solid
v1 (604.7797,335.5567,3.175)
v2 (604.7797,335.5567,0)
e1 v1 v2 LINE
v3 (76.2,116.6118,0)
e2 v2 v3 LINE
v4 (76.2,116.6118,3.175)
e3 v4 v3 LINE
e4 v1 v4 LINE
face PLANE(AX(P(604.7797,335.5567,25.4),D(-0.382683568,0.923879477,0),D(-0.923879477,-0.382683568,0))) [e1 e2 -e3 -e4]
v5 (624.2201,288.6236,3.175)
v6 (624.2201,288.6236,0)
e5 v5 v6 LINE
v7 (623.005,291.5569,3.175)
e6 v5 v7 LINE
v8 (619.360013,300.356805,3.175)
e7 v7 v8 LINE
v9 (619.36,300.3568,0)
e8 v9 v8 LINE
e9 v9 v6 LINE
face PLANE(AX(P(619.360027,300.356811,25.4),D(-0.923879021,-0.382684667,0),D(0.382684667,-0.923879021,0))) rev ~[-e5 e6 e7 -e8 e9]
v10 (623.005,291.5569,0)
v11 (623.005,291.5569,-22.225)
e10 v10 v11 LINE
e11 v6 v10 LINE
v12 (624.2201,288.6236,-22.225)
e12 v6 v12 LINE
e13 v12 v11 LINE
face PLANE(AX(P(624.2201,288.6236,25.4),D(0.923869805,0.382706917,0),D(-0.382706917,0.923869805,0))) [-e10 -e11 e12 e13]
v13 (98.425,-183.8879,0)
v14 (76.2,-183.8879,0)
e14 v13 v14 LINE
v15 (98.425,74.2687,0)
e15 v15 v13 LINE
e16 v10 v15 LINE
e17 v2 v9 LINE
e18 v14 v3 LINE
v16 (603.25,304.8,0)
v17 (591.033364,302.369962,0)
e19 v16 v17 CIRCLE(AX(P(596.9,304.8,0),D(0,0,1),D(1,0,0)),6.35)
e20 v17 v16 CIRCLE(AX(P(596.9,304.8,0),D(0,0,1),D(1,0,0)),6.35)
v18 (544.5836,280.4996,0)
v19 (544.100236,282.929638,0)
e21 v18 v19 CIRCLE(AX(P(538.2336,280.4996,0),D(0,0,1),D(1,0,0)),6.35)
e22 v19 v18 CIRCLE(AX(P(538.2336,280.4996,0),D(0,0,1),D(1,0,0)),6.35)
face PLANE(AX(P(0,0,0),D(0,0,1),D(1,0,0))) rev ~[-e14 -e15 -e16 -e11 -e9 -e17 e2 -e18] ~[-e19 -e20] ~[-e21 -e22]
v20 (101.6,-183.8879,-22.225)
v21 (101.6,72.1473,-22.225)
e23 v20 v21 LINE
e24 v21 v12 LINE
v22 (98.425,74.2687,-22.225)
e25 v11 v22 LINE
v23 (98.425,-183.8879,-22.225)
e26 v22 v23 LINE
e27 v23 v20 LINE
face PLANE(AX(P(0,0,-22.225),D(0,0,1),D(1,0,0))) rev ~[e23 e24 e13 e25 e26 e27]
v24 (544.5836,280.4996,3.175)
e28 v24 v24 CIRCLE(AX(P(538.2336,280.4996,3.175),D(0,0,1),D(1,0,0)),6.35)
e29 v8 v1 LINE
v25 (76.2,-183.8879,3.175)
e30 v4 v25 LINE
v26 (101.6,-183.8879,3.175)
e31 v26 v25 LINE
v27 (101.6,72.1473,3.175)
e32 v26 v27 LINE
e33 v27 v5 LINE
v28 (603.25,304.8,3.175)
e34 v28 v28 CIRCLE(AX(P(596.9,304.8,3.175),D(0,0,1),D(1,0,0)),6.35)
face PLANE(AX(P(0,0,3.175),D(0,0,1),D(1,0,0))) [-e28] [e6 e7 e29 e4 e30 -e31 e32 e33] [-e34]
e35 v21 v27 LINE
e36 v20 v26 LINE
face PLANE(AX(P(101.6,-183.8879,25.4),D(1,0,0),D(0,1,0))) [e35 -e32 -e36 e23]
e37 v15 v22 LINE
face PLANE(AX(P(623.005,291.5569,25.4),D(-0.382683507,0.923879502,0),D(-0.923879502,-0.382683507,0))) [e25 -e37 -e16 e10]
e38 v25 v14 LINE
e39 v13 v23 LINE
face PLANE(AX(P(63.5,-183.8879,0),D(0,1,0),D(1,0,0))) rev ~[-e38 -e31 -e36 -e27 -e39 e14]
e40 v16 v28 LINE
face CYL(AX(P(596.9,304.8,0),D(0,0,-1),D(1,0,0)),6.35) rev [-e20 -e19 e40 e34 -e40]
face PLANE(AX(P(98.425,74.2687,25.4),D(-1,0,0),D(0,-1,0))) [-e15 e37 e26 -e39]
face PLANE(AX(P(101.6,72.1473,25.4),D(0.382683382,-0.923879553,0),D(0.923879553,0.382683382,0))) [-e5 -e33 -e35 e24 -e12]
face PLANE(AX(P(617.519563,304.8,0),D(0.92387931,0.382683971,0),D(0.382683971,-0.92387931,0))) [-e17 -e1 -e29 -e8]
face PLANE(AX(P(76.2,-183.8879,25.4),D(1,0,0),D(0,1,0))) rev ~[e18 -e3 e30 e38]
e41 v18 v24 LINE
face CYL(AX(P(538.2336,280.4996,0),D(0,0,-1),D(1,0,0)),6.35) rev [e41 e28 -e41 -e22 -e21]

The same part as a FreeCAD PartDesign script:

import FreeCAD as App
import Part
import Sketcher
Q = App.Units.Quantity


def add_polygon(sketch, points):
    """Adds a closed chain of lines whose ends are joined by coincident constraints."""
    first, n = sketch.GeometryCount, len(points)
    for a, b in zip(points, points[1:] + points[:1]):
        sketch.addGeometry(Part.LineSegment(App.Vector(*a, 0), App.Vector(*b, 0)), False)
    for i in range(n):
        sketch.addConstraint(Sketcher.Constraint("Coincident", first + i, 2, first + (i + 1) % n, 1))

doc = App.newDocument("Part")
body = doc.addObject("PartDesign::Body", "Body")

# Sketch on XY plane
sketch1 = body.newObject("Sketcher::SketchObject", "Sketch")
sketch1.AttachmentSupport = (doc.getObject("XY_Plane"), [""])
sketch1.MapMode = "FlatFace"
add_polygon(sketch1, [(64, -184), (89, -184), (89, 81), (619, 300), (610, 324), (64, 98)])  # lines 0-5
sketch1.addGeometry(Part.Circle(App.Vector(597, 305, 0), App.Vector(0, 0, 1), 6), False)  # 6
sketch1.addGeometry(Part.Circle(App.Vector(538, 280, 0), App.Vector(0, 0, 1), 6), False)  # 7
sketch1.addConstraint([
    Sketcher.Constraint("Horizontal", 0),
    Sketcher.Constraint("Vertical", 1),
    Sketcher.Constraint("Vertical", 5),
    Sketcher.Constraint("Equal", 6, 7),
    Sketcher.Constraint("Perpendicular", 2, 3),
    Sketcher.Constraint("Perpendicular", 3, 4),
    Sketcher.Constraint("Diameter", 6, Q("0.5 in")),
    Sketcher.Constraint("DistanceX", 0, 1, 0, 2, Q("1 in")),
    Sketcher.Constraint("Distance", 3, Q("1 in")),
    Sketcher.Constraint("DistanceX", 4, 2, 6, 3, Q("21 in")),
    Sketcher.Constraint("DistanceX", -1, 1, 4, 2, Q("2.5 in")),
    Sketcher.Constraint("Angle", 2, Q("22.5 deg")),
    Sketcher.Constraint("DistanceY", -1, 1, 6, 3, Q("12 in")),
    Sketcher.Constraint("Distance", 4, Q("591.1375 mm")),
    Sketcher.Constraint("DistanceY", 5, 2, 5, 1, Q("11.0824 in")),
    Sketcher.Constraint("DistanceX", -1, 1, 7, 3, Q("21.1903 in")),
    Sketcher.Constraint("DistanceY", -1, 1, 7, 3, Q("11.0433 in")),
    Sketcher.Constraint("DistanceY", 0, 2, -1, 1, Q("183.888 mm")),
])
pad1 = body.newObject("PartDesign::Pad", "Pad")
pad1.Profile = sketch1
pad1.Length = Q("1 in")

# Sketch on XY plane
sketch2 = body.newObject("Sketcher::SketchObject", "Sketch001")
sketch2.AttachmentSupport = (doc.getObject("XY_Plane"), [""])
sketch2.MapMode = "FlatFace"
sketch2.AttachmentOffset = App.Placement(App.Vector(0, 0, 1 * 25.4), App.Rotation())
add_polygon(sketch2, [(624, 289), (619, 300), (89, 81), (89, -184), (102, -184), (102, 72)])  # lines 0-5
add_polygon(sketch2, [(64, 98), (610, 324), (605, 336), (51, 106), (51, -184), (64, -184)])  # lines 6-11
sketch2.addConstraint([
    Sketcher.Constraint("Vertical", 2),
    Sketcher.Constraint("Horizontal", 3),
    Sketcher.Constraint("Vertical", 4),
    Sketcher.Constraint("Vertical", 9),
    Sketcher.Constraint("Horizontal", 10),
    Sketcher.Constraint("Vertical", 11),
    Sketcher.Constraint("Perpendicular", 0, 1),
    Sketcher.Constraint("Parallel", 1, 5),
    Sketcher.Constraint("Parallel", 5, 6),
    Sketcher.Constraint("Perpendicular", 6, 7),
    Sketcher.Constraint("Perpendicular", 7, 8),
    Sketcher.Constraint("Horizontal", 3, 2, 9, 2),
    Sketcher.Constraint("Equal", 3, 10),
    Sketcher.Constraint("Equal", 0, 7),
    Sketcher.Constraint("DistanceX", -1, 1, 8, 2, Q("2 in")),
    Sketcher.Constraint("DistanceX", 8, 2, 4, 2, Q("2 in")),
    Sketcher.Constraint("DistanceX", 10, 2, 2, 2, Q("1 in")),
    Sketcher.Constraint("Angle", 0, Q("112.5 deg")),
    Sketcher.Constraint("Distance", 0, Q("0.5 in")),
    Sketcher.Constraint("DistanceY", 11, 1, 11, 2, Q("11.0824 in")),
    Sketcher.Constraint("DistanceY", 2, 2, 2, 1, Q("264.521 mm")),
    Sketcher.Constraint("DistanceX", -1, 1, 5, 2, Q("24.5756 in")),
    Sketcher.Constraint("DistanceY", -1, 1, 7, 2, Q("13.2109 in")),
    Sketcher.Constraint("DistanceY", -1, 1, 8, 2, Q("4.1768 in")),
])
pad2 = body.newObject("PartDesign::Pad", "Pad001")
pad2.Profile = sketch2
pad2.Length = Q("1 in")
pad2.Reversed = True

# Sketch on XY plane
sketch3 = body.newObject("Sketcher::SketchObject", "Sketch002")
sketch3.AttachmentSupport = (doc.getObject("XY_Plane"), [""])
sketch3.MapMode = "FlatFace"
sketch3.AttachmentOffset = App.Placement(App.Vector(0, 0, 1 * 25.4), App.Rotation())
add_polygon(sketch3, [(76, -184), (76, 117), (51, 106), (51, -184)])  # lines 0-3
sketch3.addConstraint([
    Sketcher.Constraint("Vertical", 0),
    Sketcher.Constraint("Vertical", 2),
    Sketcher.Constraint("Horizontal", 3),
    Sketcher.Constraint("DistanceX", 3, 1, 3, 2, Q("1 in")),
    Sketcher.Constraint("DistanceX", -1, 1, 0, 2, Q("3 in")),
    Sketcher.Constraint("Angle", 1, Q("-157.5 deg")),
    Sketcher.Constraint("DistanceY", 0, 1, 0, 2, Q("11.8307 in")),
    Sketcher.Constraint("DistanceY", -1, 1, 1, 2, Q("4.1768 in")),
])
pocket1 = body.newObject("PartDesign::Pocket", "Pocket")
pocket1.Profile = sketch3
pocket1.Length = Q("1 in")

# Sketch on XY plane
sketch4 = body.newObject("Sketcher::SketchObject", "Sketch003")
sketch4.AttachmentSupport = (doc.getObject("XY_Plane"), [""])
sketch4.MapMode = "FlatFace"
sketch4.AttachmentOffset = App.Placement(App.Vector(0, 0, 1 * 25.4), App.Rotation())
add_polygon(sketch4, [(605, 336), (76, 117), (76, -184), (98, -184), (98, 74), (623, 292)])  # lines 0-5
sketch4.addGeometry(Part.Circle(App.Vector(538, 280, 0), App.Vector(0, 0, 1), 6), False)  # 6
sketch4.addGeometry(Part.Circle(App.Vector(597, 305, 0), App.Vector(0, 0, 1), 6), False)  # 7
sketch4.addConstraint([
    Sketcher.Constraint("Vertical", 1),
    Sketcher.Constraint("Horizontal", 2),
    Sketcher.Constraint("Vertical", 3),
    Sketcher.Constraint("Equal", 6, 7),
    Sketcher.Constraint("Parallel", 0, 4),
    Sketcher.Constraint("Perpendicular", 4, 5),
    Sketcher.Constraint("Diameter", 6, Q("0.5 in")),
    Sketcher.Constraint("Angle", 5, Q("112.5 deg")),
    Sketcher.Constraint("DistanceY", -1, 1, 7, 3, Q("12 in")),
    Sketcher.Constraint("DistanceX", -1, 1, 0, 2, Q("3 in")),
    Sketcher.Constraint("DistanceX", -1, 1, 7, 3, Q("23.5 in")),
    Sketcher.Constraint("DistanceX", 2, 1, 2, 2, Q("0.875 in")),
    Sketcher.Constraint("Distance", 5, Q("1.875 in")),
    Sketcher.Constraint("DistanceY", 1, 2, 1, 1, Q("11.8307 in")),
    Sketcher.Constraint("DistanceX", -1, 1, 6, 3, Q("21.1903 in")),
    Sketcher.Constraint("DistanceY", -1, 1, 6, 3, Q("11.0433 in")),
    Sketcher.Constraint("DistanceY", -1, 1, 5, 2, Q("13.2109 in")),
    Sketcher.Constraint("DistanceY", 0, 2, 4, 2, Q("6.8876 in")),
])
pocket2 = body.newObject("PartDesign::Pocket", "Pocket001")
pocket2.Profile = sketch4
pocket2.Length = Q("0.875 in")

# Sketch on XY plane
sketch5 = body.newObject("Sketcher::SketchObject", "Sketch004")
sketch5.AttachmentSupport = (doc.getObject("XY_Plane"), [""])
sketch5.MapMode = "FlatFace"
sketch5.AttachmentOffset = App.Placement(App.Vector(0, 0, 1 * 25.4), App.Rotation())
add_polygon(sketch5, [(624.2, 288.6), (623, 291.6), (98.4, 74.3), (98.4, -183.9), (101.6, -183.9), (101.6, 72.1)])  # lines 0-5
sketch5.addConstraint([
    Sketcher.Constraint("Vertical", 2),
    Sketcher.Constraint("Horizontal", 3),
    Sketcher.Constraint("Vertical", 4),
    Sketcher.Constraint("Perpendicular", 0, 1),
    Sketcher.Constraint("Parallel", 1, 5),
    Sketcher.Constraint("DistanceX", -1, 1, 3, 2, Q("4 in")),
    Sketcher.Constraint("Angle", 1, Q("-157.5 deg")),
    Sketcher.Constraint("DistanceX", 3, 1, 3, 2, Q("0.125 in")),
    Sketcher.Constraint("Distance", 0, Q("0.125 in")),
    Sketcher.Constraint("DistanceY", 2, 2, 2, 1, Q("258.1566 mm")),
    Sketcher.Constraint("DistanceX", -1, 1, 5, 2, Q("24.5756 in")),
    Sketcher.Constraint("DistanceY", -1, 1, 0, 2, Q("291.557 mm")),
])
pad3 = body.newObject("PartDesign::Pad", "Pad002")
pad3.Profile = sketch5
pad3.Length = Q("1.875 in")
pad3.Reversed = True

# Sketch on XY plane
sketch6 = body.newObject("Sketcher::SketchObject", "Sketch005")
sketch6.AttachmentSupport = (doc.getObject("XY_Plane"), [""])
sketch6.MapMode = "FlatFace"
sketch6.AttachmentOffset = App.Placement(App.Vector(0, 0, 1 * 25.4), App.Rotation())
add_polygon(sketch6, [(624.2, 288.6), (623, 291.6), (98.4, 74.3), (98.4, -183.9), (101.6, -183.9), (101.6, 72.1)])  # lines 0-5
sketch6.addConstraint([
    Sketcher.Constraint("Vertical", 2),
    Sketcher.Constraint("Horizontal", 3),
    Sketcher.Constraint("Vertical", 4),
    Sketcher.Constraint("Perpendicular", 0, 1),
    Sketcher.Constraint("Parallel", 1, 5),
    Sketcher.Constraint("DistanceX", -1, 1, 3, 2, Q("4 in")),
    Sketcher.Constraint("Angle", 1, Q("-157.5 deg")),
    Sketcher.Constraint("DistanceX", 3, 1, 3, 2, Q("0.125 in")),
    Sketcher.Constraint("Distance", 0, Q("0.125 in")),
    Sketcher.Constraint("DistanceY", 2, 2, 2, 1, Q("258.1566 mm")),
    Sketcher.Constraint("DistanceX", -1, 1, 5, 2, Q("24.5756 in")),
    Sketcher.Constraint("DistanceY", -1, 1, 0, 2, Q("291.557 mm")),
])
pocket3 = body.newObject("PartDesign::Pocket", "Pocket002")
pocket3.Profile = sketch6
pocket3.Length = Q("0.875 in")

doc.recompute()
